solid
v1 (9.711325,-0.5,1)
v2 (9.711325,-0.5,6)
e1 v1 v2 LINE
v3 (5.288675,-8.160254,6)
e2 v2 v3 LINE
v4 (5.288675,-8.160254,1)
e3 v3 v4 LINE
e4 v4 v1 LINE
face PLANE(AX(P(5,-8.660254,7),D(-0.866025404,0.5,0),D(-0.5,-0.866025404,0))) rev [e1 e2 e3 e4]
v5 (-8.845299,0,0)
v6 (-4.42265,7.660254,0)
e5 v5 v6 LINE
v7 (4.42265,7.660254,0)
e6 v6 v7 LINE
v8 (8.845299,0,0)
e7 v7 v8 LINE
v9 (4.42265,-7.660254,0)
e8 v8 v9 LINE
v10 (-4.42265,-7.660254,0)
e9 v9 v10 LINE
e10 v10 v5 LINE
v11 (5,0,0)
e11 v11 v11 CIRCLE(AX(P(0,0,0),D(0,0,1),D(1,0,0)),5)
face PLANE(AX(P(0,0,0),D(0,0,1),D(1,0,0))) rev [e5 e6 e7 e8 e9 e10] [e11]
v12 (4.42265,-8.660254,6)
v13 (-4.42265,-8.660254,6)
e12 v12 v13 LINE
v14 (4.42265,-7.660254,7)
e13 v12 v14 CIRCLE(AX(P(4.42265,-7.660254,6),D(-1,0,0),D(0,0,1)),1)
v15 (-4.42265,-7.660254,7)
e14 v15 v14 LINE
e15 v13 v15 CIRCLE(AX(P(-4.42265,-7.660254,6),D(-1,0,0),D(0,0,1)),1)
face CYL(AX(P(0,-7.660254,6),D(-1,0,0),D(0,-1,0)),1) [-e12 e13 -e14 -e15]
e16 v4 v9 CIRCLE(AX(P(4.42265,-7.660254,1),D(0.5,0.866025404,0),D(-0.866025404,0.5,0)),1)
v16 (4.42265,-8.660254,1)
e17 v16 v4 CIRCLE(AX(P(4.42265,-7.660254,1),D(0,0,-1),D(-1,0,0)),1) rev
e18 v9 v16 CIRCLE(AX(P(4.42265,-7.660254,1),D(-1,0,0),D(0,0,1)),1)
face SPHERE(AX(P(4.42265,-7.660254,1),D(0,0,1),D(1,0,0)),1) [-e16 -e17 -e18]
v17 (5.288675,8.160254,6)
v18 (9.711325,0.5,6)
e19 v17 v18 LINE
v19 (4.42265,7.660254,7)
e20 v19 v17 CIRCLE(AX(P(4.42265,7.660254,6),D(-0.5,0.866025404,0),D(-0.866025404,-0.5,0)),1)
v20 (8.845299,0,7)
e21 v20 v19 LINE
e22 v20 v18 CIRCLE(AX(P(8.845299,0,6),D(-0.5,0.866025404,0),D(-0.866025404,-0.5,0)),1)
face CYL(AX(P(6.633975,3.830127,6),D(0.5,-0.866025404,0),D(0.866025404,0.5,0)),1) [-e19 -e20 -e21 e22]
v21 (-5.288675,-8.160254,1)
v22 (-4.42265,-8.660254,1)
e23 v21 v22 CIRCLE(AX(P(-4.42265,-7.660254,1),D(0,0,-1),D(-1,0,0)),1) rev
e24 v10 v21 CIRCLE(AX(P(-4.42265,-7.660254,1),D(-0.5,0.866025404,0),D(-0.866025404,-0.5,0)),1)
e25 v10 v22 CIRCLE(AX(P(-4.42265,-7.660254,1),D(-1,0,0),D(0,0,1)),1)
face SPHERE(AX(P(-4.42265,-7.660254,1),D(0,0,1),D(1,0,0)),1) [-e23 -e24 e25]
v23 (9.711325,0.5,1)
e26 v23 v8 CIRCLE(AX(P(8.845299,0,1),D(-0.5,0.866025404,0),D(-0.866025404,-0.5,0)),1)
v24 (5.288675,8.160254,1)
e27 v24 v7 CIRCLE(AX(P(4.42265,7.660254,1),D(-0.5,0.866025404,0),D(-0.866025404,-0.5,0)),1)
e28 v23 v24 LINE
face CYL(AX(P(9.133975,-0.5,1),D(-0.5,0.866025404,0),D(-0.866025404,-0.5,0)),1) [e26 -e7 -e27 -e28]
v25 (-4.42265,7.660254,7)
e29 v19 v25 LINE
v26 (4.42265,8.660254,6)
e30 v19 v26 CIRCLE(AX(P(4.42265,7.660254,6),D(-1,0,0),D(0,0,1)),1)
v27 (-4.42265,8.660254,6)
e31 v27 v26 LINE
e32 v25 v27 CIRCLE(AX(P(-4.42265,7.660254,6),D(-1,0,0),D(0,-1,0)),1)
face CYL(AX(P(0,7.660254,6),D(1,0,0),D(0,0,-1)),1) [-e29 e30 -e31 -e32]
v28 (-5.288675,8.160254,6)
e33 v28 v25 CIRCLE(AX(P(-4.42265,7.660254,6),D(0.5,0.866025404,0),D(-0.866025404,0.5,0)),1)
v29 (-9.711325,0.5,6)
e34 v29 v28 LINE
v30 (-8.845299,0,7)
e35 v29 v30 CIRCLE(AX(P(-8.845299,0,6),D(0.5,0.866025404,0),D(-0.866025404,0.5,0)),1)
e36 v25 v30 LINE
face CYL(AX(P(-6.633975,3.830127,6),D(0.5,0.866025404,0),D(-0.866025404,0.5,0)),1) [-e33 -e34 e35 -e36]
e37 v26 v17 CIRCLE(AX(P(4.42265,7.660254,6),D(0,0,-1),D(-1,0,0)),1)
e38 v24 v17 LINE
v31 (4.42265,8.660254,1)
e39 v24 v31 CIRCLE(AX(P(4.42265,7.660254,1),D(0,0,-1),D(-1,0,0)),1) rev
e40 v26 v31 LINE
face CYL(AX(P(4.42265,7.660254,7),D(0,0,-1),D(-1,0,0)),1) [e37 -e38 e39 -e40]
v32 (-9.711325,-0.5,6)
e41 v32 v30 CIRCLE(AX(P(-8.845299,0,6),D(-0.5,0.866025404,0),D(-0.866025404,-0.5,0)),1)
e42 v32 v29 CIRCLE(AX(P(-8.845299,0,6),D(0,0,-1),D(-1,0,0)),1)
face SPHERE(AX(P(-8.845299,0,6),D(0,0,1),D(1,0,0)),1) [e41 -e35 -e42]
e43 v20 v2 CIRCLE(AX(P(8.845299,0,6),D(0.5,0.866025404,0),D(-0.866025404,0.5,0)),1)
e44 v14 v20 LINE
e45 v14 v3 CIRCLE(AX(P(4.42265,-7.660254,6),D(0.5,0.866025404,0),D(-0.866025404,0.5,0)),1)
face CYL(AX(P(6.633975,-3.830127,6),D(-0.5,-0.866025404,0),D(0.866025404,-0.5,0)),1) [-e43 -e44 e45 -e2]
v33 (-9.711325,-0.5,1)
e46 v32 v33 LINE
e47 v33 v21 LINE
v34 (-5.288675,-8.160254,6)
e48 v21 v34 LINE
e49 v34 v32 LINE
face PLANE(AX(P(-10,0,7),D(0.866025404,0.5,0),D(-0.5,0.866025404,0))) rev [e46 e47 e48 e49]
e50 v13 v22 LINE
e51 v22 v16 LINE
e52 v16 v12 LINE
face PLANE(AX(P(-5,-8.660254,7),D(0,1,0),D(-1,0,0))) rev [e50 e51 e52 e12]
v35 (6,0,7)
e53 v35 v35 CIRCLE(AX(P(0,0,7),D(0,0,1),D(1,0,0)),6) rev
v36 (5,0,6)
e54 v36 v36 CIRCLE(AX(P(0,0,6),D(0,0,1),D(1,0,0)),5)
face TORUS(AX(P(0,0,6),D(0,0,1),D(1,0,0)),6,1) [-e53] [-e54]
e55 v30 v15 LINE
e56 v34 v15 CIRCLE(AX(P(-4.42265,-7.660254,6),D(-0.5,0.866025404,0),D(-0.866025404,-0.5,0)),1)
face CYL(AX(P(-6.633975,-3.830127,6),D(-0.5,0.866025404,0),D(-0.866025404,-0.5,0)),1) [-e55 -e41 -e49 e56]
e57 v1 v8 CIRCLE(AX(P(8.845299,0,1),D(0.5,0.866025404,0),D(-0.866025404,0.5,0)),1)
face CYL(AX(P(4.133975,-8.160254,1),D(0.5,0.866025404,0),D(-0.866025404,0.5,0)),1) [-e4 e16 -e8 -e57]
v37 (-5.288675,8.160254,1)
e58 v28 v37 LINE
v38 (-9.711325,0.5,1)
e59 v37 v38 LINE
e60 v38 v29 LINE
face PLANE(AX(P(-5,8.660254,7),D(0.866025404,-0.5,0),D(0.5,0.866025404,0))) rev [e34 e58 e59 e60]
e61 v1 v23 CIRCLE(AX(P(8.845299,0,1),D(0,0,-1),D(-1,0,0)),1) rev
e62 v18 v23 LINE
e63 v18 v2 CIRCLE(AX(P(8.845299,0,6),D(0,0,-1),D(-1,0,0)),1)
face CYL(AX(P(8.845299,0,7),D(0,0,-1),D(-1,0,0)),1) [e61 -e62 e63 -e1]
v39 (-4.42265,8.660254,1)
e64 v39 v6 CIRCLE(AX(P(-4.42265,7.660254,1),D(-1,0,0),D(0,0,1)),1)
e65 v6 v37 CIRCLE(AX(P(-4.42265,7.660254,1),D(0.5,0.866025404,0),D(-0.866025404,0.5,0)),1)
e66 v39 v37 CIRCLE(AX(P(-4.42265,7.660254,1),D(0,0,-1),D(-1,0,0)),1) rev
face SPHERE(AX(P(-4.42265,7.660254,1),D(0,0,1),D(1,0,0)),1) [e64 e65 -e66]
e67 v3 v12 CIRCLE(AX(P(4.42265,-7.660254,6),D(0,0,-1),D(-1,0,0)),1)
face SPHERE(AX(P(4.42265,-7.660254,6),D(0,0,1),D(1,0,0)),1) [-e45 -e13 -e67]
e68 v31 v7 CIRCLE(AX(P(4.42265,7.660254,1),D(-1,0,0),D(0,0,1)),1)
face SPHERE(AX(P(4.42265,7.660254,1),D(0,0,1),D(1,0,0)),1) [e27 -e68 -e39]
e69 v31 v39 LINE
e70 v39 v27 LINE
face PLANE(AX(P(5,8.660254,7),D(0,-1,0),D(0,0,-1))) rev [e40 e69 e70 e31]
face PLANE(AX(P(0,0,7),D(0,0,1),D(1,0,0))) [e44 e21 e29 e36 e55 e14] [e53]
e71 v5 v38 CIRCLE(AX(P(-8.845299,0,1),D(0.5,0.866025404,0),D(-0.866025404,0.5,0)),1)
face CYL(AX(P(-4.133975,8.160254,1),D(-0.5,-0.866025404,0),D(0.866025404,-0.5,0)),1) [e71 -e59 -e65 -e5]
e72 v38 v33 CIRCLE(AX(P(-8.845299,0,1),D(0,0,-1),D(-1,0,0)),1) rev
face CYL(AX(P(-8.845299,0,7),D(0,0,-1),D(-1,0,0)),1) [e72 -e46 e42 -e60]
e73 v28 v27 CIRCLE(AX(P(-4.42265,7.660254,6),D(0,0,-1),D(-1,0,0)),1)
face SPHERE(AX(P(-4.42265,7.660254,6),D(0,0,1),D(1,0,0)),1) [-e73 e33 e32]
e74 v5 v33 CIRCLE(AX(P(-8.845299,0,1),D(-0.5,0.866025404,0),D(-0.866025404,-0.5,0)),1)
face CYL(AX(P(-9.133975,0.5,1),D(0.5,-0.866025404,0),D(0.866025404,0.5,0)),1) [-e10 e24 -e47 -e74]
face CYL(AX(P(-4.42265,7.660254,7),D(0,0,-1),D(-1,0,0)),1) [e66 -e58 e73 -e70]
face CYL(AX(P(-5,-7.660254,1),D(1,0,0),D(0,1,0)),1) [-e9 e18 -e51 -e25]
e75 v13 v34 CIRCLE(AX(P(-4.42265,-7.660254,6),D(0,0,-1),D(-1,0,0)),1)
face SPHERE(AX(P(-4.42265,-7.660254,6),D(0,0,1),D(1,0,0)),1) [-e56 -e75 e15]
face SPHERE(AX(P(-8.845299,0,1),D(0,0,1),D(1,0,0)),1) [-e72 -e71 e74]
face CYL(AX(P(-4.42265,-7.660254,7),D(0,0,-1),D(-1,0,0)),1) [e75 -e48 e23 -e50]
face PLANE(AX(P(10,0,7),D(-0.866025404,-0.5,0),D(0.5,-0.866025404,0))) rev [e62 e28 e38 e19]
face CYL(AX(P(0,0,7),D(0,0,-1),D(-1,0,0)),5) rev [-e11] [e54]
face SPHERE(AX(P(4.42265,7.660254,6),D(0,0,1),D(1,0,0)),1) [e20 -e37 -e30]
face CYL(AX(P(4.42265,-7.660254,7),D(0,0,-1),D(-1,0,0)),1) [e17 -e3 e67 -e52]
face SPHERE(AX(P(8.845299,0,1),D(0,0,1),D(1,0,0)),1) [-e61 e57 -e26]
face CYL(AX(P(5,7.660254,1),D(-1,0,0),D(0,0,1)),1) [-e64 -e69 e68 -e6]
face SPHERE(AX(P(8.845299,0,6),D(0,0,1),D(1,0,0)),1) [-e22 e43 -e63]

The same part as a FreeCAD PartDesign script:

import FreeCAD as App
import Part
import Sketcher

V = App.Vector
Q = App.Units.Quantity


def edges_at(feature, points):
    """Names of the edges that pass closest to the given points."""
    edges = feature.Shape.Edges
    near = lambda p: min(range(len(edges)), key=lambda i: edges[i].distToShape(Part.Vertex(*p))[0])
    return sorted({f"Edge{near(p) + 1}" for p in points})

doc = App.newDocument("Part")
body = doc.addObject("PartDesign::Body", "Body")

# Sketch on XY plane
sketch1 = doc.addObject("Sketcher::SketchObject", "Sketch")
body.addObject(sketch1)
sketch1.AttachmentSupport = (doc.XY_Plane, [""])
sketch1.MapMode = "FlatFace"
sketch1.addGeometry([
    Part.LineSegment(V(10, 0, 0), V(5, 9, 0)),  # 0
    Part.LineSegment(V(5, 9, 0), V(-5, 9, 0)),  # 1
    Part.LineSegment(V(-5, 9, 0), V(-10, 0, 0)),  # 2
    Part.LineSegment(V(-10, 0, 0), V(-5, -9, 0)),  # 3
    Part.LineSegment(V(-5, -9, 0), V(5, -9, 0)),  # 4
    Part.LineSegment(V(5, -9, 0), V(10, 0, 0)),  # 5
    Part.Circle(V(0, 0, 0), V(0, 0, 1), 5),  # 6
], False)
sketch1.addConstraint([
    Sketcher.Constraint("Coincident", 0, 2, 1, 1),
    Sketcher.Constraint("Coincident", 1, 2, 2, 1),
    Sketcher.Constraint("Coincident", 2, 2, 3, 1),
    Sketcher.Constraint("Coincident", 3, 2, 4, 1),
    Sketcher.Constraint("Coincident", 4, 2, 5, 1),
    Sketcher.Constraint("Coincident", 5, 2, 0, 1),
    Sketcher.Constraint("Horizontal", 1),
    Sketcher.Constraint("Horizontal", 4),
    Sketcher.Constraint("Coincident", 6, 3, -1, 1),
    Sketcher.Constraint("Symmetric", 0, 2, 3, 2, -1, 1),
    Sketcher.Constraint("Symmetric", 2, 2, 5, 2, -1, 1),
    Sketcher.Constraint("PointOnObject", 2, 2, -1),
    Sketcher.Constraint("Parallel", 2, 5),
    Sketcher.Constraint("Vertical", 1, 2, 3, 2),
    Sketcher.Constraint("Diameter", 6, 10.0),
    Sketcher.Constraint("DistanceX", 1, 2, 1, 1, 10.0),
    Sketcher.Constraint("Angle", 0, Q("120 deg")),
    Sketcher.Constraint("Distance", 0, 10.0),
])
pad1 = doc.addObject("PartDesign::Pad", "Pad")
body.addObject(pad1)
pad1.Profile = sketch1
pad1.Length = 7
doc.recompute()

fillet = doc.addObject("PartDesign::Fillet", "Fillet")
body.addObject(fillet)
fillet.Base = (pad1, edges_at(pad1, [
    (5, -8.66, 3.5),
    (-5, -8.66, 3.5),
    (-10, 0, 3.5),
    (-5, 8.66, 3.5),
    (5, 8.66, 3.5),
    (10, 0, 3.5),
    (-5, 0, 7),
]))
fillet.Radius = 1
doc.recompute()

fillet2 = doc.addObject("PartDesign::Fillet", "Fillet001")
body.addObject(fillet2)
fillet2.Base = (fillet, edges_at(fillet, [
    (7.5, -4.33, 7),
    (7.5, 4.33, 7),
    (0, 8.66, 7),
    (-7.5, 4.33, 7),
    (-7.5, -4.33, 7),
    (0, -8.66, 7),
    (4.923, 8.526, 7),
    (-4.923, 8.526, 7),
    (-9.845, 0, 7),
    (-4.923, -8.526, 7),
    (4.923, -8.526, 7),
    (9.845, 0, 7),
    (7.5, 4.33, 0),
    (7.5, -4.33, 0),
    (0, -8.66, 0),
    (-7.5, -4.33, 0),
    (-7.5, 4.33, 0),
    (0, 8.66, 0),
    (4.923, 8.526, 0),
    (-4.923, 8.526, 0),
    (-9.845, 0, 0),
    (-4.923, -8.526, 0),
    (4.923, -8.526, 0),
    (9.845, 0, 0),
]))
fillet2.Radius = 1

doc.recompute()
